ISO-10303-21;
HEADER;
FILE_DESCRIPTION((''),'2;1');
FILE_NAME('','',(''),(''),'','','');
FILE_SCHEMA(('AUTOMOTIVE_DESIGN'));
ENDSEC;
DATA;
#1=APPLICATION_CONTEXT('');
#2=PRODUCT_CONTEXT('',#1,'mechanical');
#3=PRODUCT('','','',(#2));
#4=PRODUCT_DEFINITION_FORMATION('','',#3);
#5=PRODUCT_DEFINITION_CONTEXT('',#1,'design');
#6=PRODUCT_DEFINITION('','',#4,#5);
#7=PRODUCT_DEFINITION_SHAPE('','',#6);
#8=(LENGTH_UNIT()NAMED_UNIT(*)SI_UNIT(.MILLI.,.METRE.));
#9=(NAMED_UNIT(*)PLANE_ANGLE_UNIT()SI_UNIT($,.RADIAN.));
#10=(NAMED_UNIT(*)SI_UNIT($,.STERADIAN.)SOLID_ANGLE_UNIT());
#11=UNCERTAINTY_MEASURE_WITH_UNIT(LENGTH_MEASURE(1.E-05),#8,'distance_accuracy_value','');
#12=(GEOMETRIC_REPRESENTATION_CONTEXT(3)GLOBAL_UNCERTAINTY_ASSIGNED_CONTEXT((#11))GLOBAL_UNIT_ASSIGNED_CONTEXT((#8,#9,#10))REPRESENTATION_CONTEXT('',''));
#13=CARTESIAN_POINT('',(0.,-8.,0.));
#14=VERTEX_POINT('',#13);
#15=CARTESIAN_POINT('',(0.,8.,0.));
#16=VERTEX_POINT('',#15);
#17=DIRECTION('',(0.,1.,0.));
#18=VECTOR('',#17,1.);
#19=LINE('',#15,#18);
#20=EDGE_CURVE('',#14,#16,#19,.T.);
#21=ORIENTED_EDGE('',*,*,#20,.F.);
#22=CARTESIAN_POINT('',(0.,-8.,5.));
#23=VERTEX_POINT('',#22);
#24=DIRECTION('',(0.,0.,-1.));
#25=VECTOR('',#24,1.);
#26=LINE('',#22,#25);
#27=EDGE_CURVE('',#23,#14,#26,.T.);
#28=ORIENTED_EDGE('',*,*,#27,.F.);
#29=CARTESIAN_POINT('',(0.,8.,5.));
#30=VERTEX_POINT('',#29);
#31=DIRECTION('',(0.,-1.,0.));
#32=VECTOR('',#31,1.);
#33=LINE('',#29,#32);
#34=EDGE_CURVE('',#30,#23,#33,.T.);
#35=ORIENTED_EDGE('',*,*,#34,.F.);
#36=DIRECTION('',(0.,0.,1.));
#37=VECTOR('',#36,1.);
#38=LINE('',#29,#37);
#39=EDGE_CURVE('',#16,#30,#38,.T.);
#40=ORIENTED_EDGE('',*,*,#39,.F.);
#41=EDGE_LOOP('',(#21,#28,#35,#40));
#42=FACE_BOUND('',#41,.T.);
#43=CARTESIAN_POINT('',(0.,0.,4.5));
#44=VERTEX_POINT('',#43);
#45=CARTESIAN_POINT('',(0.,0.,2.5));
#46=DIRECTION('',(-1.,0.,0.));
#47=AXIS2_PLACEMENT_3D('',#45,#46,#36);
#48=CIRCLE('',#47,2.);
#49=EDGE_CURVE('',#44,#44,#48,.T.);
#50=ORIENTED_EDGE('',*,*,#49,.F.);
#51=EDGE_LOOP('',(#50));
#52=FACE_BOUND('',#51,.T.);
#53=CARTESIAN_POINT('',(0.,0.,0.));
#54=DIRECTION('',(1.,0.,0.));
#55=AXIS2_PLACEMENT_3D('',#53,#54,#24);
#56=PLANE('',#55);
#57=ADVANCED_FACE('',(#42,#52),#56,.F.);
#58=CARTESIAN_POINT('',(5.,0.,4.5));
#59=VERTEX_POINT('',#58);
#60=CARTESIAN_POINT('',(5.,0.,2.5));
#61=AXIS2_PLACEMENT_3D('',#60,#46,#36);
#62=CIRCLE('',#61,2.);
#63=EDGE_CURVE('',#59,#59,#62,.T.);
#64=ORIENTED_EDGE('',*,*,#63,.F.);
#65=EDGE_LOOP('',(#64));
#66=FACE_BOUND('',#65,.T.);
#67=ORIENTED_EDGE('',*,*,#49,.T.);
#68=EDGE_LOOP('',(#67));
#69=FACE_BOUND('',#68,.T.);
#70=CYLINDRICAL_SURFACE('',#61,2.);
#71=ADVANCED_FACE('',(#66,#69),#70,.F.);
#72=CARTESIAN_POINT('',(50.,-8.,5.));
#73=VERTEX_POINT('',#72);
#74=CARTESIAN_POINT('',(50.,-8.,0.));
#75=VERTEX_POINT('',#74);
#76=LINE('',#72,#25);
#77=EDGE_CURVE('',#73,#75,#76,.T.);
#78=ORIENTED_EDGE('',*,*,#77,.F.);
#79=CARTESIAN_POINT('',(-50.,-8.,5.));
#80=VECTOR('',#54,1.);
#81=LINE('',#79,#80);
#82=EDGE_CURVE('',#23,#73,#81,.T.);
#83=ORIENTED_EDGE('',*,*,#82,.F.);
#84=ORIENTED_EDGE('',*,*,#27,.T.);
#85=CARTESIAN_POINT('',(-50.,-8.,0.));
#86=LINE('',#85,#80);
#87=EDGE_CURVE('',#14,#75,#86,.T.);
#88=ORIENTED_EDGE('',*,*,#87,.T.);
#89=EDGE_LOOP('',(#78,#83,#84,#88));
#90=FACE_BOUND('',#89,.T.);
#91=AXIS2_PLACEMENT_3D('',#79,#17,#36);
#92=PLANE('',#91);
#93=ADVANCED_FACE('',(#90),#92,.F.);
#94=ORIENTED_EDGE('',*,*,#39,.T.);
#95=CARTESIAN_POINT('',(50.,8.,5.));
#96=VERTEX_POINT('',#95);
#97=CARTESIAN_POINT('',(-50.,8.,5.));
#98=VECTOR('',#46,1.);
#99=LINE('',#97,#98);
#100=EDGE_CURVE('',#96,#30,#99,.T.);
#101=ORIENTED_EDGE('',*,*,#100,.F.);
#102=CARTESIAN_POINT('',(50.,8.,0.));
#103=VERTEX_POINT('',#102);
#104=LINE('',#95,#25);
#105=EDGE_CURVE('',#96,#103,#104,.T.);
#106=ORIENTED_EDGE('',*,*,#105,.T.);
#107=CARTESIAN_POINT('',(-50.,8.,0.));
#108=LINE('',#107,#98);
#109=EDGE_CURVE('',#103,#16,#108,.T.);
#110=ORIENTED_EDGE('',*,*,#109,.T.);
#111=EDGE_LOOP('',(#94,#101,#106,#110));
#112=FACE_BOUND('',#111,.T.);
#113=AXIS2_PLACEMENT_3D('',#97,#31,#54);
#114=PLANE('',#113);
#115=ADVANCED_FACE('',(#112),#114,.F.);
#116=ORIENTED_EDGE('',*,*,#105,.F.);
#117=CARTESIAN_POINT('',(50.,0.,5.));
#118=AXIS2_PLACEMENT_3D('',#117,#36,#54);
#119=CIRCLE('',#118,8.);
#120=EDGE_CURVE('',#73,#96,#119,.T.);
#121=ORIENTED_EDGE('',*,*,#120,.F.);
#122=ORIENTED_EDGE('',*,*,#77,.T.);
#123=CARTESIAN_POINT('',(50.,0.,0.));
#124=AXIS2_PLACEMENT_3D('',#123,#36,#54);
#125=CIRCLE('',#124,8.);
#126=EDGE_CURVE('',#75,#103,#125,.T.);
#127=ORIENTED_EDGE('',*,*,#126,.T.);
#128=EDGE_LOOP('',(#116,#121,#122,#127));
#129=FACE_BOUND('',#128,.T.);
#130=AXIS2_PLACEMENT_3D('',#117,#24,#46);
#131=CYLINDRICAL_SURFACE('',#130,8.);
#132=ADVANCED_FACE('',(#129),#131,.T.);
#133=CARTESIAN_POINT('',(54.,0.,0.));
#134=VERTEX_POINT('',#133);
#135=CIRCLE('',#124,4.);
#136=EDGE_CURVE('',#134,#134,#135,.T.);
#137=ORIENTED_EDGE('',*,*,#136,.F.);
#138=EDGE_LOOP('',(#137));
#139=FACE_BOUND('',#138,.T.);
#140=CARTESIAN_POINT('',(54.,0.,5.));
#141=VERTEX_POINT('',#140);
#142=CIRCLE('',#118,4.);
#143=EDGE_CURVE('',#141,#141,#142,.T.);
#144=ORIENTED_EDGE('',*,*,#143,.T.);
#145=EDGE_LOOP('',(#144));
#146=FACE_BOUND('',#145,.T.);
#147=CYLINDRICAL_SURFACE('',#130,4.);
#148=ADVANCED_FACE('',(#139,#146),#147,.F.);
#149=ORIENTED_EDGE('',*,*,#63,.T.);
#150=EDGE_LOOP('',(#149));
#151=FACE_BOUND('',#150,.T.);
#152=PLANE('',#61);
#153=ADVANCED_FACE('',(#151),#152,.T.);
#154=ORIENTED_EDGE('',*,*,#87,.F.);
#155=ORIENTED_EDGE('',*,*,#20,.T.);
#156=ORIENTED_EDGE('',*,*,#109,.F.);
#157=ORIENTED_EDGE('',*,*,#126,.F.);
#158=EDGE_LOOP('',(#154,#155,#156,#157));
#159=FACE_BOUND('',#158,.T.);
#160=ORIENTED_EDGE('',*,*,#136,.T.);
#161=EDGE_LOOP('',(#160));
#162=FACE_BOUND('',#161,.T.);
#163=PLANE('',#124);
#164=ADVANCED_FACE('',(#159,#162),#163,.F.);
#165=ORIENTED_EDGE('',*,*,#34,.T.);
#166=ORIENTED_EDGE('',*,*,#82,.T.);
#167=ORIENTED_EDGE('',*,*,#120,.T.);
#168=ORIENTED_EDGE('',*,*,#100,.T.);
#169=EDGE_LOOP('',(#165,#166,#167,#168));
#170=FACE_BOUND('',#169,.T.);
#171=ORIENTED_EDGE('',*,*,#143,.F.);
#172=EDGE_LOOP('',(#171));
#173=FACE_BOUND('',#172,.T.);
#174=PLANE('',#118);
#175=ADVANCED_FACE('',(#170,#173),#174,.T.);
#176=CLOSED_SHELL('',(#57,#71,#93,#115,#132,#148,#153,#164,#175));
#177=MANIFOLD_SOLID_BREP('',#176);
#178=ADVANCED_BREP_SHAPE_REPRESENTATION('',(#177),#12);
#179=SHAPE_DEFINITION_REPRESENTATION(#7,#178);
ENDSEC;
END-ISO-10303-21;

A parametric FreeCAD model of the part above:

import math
import FreeCAD as App
import Part
import Sketcher

V = App.Vector

doc = App.newDocument("Part")
body = doc.addObject("PartDesign::Body", "Body")

sketch1 = body.newObject("Sketcher::SketchObject", "Sketch")
sketch1.AttachmentSupport = (doc.getObject("XY_Plane"), [""])
sketch1.MapMode = "FlatFace"
sketch1.addGeometry(Part.LineSegment(V(-50, -8, 0), V(50, -8, 0)), False)
sketch1.addGeometry(Part.ArcOfCircle(Part.Circle(V(50, 0, 0), V(0, 0, 1), 8), math.radians(-90), math.radians(90)), False)
sketch1.addGeometry(Part.LineSegment(V(50, 8, 0), V(-50, 8, 0)), False)
sketch1.addGeometry(Part.ArcOfCircle(Part.Circle(V(-50, 0, 0), V(0, 0, 1), 8), math.radians(90), math.radians(270)), False)
sketch1.addGeometry(Part.Circle(V(-50, 0, 0), V(0, 0, 1), 4), False)
sketch1.addGeometry(Part.Circle(V(50, 0, 0), V(0, 0, 1), 4), False)
sketch1.addConstraint(Sketcher.Constraint("Tangent", 0, 2, 1, 1))
sketch1.addConstraint(Sketcher.Constraint("Tangent", 1, 2, 2, 1))
sketch1.addConstraint(Sketcher.Constraint("Tangent", 2, 2, 3, 1))
sketch1.addConstraint(Sketcher.Constraint("Tangent", 3, 2, 0, 1))
sketch1.addConstraint(Sketcher.Constraint("Horizontal", 0))
sketch1.addConstraint(Sketcher.Constraint("Horizontal", 2))
sketch1.addConstraint(Sketcher.Constraint("Coincident", 4, 3, 3, 3))
sketch1.addConstraint(Sketcher.Constraint("Coincident", 5, 3, 1, 3))
sketch1.addConstraint(Sketcher.Constraint("Equal", 4, 5))
sketch1.addConstraint(Sketcher.Constraint("Symmetric", 1, 3, 3, 3, -1, 1))
sketch1.addConstraint(Sketcher.Constraint("Diameter", 4, 8.0))
sketch1.addConstraint(Sketcher.Constraint("Radius", 1, 8.0))
sketch1.addConstraint(Sketcher.Constraint("DistanceX", 0, 1, 0, 2, 100.0))
pad1 = body.newObject("PartDesign::Pad", "Pad")
pad1.Profile = sketch1
pad1.Length = 5

sketch2 = body.newObject("Sketcher::SketchObject", "Sketch001")
sketch2.AttachmentSupport = (doc.getObject("YZ_Plane"), [""])
sketch2.MapMode = "FlatFace"
sketch2.addGeometry(Part.LineSegment(V(8, 5, 0), V(-8, 5, 0)), False)
sketch2.addGeometry(Part.LineSegment(V(-8, 5, 0), V(-8, 0, 0)), False)
sketch2.addGeometry(Part.LineSegment(V(-8, 0, 0), V(8, 0, 0)), False)
sketch2.addGeometry(Part.LineSegment(V(8, 0, 0), V(8, 5, 0)), False)
sketch2.addConstraint(Sketcher.Constraint("Coincident", 0, 2, 1, 1))
sketch2.addConstraint(Sketcher.Constraint("Coincident", 1, 2, 2, 1))
sketch2.addConstraint(Sketcher.Constraint("Coincident", 2, 2, 3, 1))
sketch2.addConstraint(Sketcher.Constraint("Coincident", 3, 2, 0, 1))
sketch2.addConstraint(Sketcher.Constraint("Horizontal", 0))
sketch2.addConstraint(Sketcher.Constraint("Vertical", 1))
sketch2.addConstraint(Sketcher.Constraint("Horizontal", 2))
sketch2.addConstraint(Sketcher.Constraint("Vertical", 3))
sketch2.addConstraint(Sketcher.Constraint("Symmetric", 1, 2, 2, 2, -1, 1))
sketch2.addConstraint(Sketcher.Constraint("DistanceX", 0, 2, 0, 1, 16.0))
sketch2.addConstraint(Sketcher.Constraint("DistanceY", 1, 2, 1, 1, 5.0))
pocket1 = body.newObject("PartDesign::Pocket", "Pocket")
pocket1.Profile = sketch2
pocket1.Type = "ThroughAll"

sketch3 = body.newObject("Sketcher::SketchObject", "Sketch002")
sketch3.AttachmentSupport = (doc.getObject("YZ_Plane"), [""])
sketch3.MapMode = "FlatFace"
sketch3.addGeometry(Part.Circle(V(0, 2.5, 0), V(0, 0, 1), 2), False)
sketch3.addConstraint(Sketcher.Constraint("PointOnObject", 0, 3, -2))
sketch3.addConstraint(Sketcher.Constraint("Diameter", 0, 4.0))
sketch3.addConstraint(Sketcher.Constraint("DistanceY", -1, 1, 0, 3, 2.5))
pocket2 = body.newObject("PartDesign::Pocket", "Pocket001")
pocket2.Profile = sketch3
pocket2.Length = 5
pocket2.Reversed = True

doc.recompute()
